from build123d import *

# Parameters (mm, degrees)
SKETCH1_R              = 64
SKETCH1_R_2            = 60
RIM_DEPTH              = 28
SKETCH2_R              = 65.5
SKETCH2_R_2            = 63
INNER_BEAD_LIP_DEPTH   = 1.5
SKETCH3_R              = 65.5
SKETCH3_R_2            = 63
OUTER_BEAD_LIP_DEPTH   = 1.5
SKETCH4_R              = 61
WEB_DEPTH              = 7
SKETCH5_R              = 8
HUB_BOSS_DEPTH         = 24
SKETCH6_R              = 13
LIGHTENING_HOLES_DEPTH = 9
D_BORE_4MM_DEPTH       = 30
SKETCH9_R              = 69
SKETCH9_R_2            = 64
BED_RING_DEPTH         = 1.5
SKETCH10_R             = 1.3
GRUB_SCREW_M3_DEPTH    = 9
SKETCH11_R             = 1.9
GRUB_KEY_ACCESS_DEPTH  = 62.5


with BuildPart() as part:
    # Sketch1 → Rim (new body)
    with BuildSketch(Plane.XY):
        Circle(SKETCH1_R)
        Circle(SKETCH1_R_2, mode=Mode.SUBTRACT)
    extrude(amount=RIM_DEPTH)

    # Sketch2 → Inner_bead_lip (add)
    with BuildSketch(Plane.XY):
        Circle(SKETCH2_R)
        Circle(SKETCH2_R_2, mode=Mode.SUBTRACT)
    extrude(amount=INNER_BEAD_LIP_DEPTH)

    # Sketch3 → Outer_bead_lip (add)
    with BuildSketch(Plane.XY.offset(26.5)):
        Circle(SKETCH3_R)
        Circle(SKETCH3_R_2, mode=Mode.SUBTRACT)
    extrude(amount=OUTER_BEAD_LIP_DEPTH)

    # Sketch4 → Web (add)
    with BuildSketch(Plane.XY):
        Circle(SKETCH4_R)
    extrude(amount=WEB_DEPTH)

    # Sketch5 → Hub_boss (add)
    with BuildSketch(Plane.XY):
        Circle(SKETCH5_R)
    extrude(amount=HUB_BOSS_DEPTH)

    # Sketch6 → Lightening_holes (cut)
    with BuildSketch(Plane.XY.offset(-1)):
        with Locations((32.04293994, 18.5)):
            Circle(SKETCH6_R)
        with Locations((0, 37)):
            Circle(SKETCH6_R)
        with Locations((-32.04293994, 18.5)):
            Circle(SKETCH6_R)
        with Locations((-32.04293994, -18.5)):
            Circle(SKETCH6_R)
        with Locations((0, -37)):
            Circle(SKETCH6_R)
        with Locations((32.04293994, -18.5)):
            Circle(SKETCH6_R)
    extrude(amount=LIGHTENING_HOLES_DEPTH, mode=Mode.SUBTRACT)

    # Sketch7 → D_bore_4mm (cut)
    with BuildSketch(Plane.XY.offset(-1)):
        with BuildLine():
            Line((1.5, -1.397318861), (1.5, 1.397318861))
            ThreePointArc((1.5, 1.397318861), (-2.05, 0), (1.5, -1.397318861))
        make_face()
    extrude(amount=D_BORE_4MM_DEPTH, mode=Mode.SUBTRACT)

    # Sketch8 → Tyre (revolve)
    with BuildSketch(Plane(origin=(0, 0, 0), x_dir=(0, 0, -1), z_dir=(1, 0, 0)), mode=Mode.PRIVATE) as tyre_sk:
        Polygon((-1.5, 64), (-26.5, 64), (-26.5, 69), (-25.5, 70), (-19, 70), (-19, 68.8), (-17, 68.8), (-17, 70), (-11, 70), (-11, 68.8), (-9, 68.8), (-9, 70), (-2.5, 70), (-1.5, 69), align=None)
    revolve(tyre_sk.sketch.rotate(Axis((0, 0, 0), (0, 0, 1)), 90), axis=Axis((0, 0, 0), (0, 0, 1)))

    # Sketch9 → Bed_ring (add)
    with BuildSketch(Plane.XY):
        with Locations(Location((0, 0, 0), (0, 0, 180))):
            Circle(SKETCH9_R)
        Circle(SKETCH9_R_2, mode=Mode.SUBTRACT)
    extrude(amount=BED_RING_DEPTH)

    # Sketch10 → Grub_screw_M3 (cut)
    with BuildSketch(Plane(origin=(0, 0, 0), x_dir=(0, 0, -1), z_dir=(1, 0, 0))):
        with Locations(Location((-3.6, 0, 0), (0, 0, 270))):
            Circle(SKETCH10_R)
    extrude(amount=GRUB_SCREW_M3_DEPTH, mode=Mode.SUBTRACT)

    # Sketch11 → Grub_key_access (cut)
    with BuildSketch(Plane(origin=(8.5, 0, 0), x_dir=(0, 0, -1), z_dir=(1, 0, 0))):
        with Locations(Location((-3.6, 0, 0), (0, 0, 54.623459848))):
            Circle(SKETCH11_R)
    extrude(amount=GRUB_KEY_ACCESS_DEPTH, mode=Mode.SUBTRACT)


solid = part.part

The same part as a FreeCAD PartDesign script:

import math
import FreeCAD as App
import Part
import Sketcher
from FreeCAD import Vector

doc = App.newDocument("Part")
body = doc.addObject("PartDesign::Body", "Body")

# Sketch on XY plane
sketch1 = body.newObject("Sketcher::SketchObject", "Sketch")
sketch1.AttachmentSupport = (doc.getObject("XY_Plane"), [""])
sketch1.MapMode = "FlatFace"
sketch1.addGeometry([
    Part.Circle(Vector(0, 0, 0), Vector(0, 0, 1), 64),
    Part.Circle(Vector(0, 0, 0), Vector(0, 0, 1), 60),
], False)
sketch1.addConstraint([
    Sketcher.Constraint("Coincident", 0, 3, -1, 1),
    Sketcher.Constraint("Coincident", 1, 3, -1, 1),
    Sketcher.Constraint("Diameter", 0, 128.0),
    Sketcher.Constraint("Diameter", 1, 120.0),
])
pad1 = body.newObject("PartDesign::Pad", "Pad")
pad1.Profile = sketch1
pad1.Length = 28

# Sketch on XY plane
sketch2 = body.newObject("Sketcher::SketchObject", "Sketch001")
sketch2.AttachmentSupport = (doc.getObject("XY_Plane"), [""])
sketch2.MapMode = "FlatFace"
sketch2.addGeometry([
    Part.Circle(Vector(0, 0, 0), Vector(0, 0, 1), 66),
    Part.Circle(Vector(0, 0, 0), Vector(0, 0, 1), 63),
], False)
sketch2.addConstraint([
    Sketcher.Constraint("Coincident", 0, 3, -1, 1),
    Sketcher.Constraint("Coincident", 1, 3, -1, 1),
    Sketcher.Constraint("Diameter", 0, 131.0),
    Sketcher.Constraint("Diameter", 1, 126.0),
])
pad2 = body.newObject("PartDesign::Pad", "Pad001")
pad2.Profile = sketch2
pad2.Length = 1.5

# Sketch on XY plane
sketch3 = body.newObject("Sketcher::SketchObject", "Sketch002")
sketch3.AttachmentSupport = (doc.getObject("XY_Plane"), [""])
sketch3.MapMode = "FlatFace"
sketch3.AttachmentOffset = App.Placement(Vector(0, 0, 26.5), App.Rotation())
sketch3.addGeometry([
    Part.Circle(Vector(0, 0, 0), Vector(0, 0, 1), 66),
    Part.Circle(Vector(0, 0, 0), Vector(0, 0, 1), 63),
], False)
sketch3.addConstraint([
    Sketcher.Constraint("Coincident", 0, 3, -1, 1),
    Sketcher.Constraint("Coincident", 1, 3, -1, 1),
    Sketcher.Constraint("Diameter", 0, 131.0),
    Sketcher.Constraint("Diameter", 1, 126.0),
])
pad3 = body.newObject("PartDesign::Pad", "Pad002")
pad3.Profile = sketch3
pad3.Length = 1.5

# Sketch on XY plane
sketch4 = body.newObject("Sketcher::SketchObject", "Sketch003")
sketch4.AttachmentSupport = (doc.getObject("XY_Plane"), [""])
sketch4.MapMode = "FlatFace"
sketch4.addGeometry(Part.Circle(Vector(0, 0, 0), Vector(0, 0, 1), 61), False)
sketch4.addConstraint([
    Sketcher.Constraint("Coincident", 0, 3, -1, 1),
    Sketcher.Constraint("Diameter", 0, 122.0),
])
pad4 = body.newObject("PartDesign::Pad", "Pad003")
pad4.Profile = sketch4
pad4.Length = 7

# Sketch on XY plane
sketch5 = body.newObject("Sketcher::SketchObject", "Sketch004")
sketch5.AttachmentSupport = (doc.getObject("XY_Plane"), [""])
sketch5.MapMode = "FlatFace"
sketch5.addGeometry(Part.Circle(Vector(0, 0, 0), Vector(0, 0, 1), 8), False)
sketch5.addConstraint([
    Sketcher.Constraint("Coincident", 0, 3, -1, 1),
    Sketcher.Constraint("Diameter", 0, 16.0),
])
pad5 = body.newObject("PartDesign::Pad", "Pad004")
pad5.Profile = sketch5
pad5.Length = 24

# Sketch on XY plane
sketch6 = body.newObject("Sketcher::SketchObject", "Sketch005")
sketch6.AttachmentSupport = (doc.getObject("XY_Plane"), [""])
sketch6.MapMode = "FlatFace"
sketch6.AttachmentOffset = App.Placement(Vector(0, 0, -1), App.Rotation())
sketch6.addGeometry([
    Part.Circle(Vector(32, 18, 0), Vector(0, 0, 1), 13),  # 0
    Part.Circle(Vector(0, 37, 0), Vector(0, 0, 1), 13),  # 1
    Part.Circle(Vector(-32, 18, 0), Vector(0, 0, 1), 13),  # 2
    Part.Circle(Vector(-32, -18, 0), Vector(0, 0, 1), 13),  # 3
    Part.Circle(Vector(0, -37, 0), Vector(0, 0, 1), 13),  # 4
    Part.Circle(Vector(32, -18, 0), Vector(0, 0, 1), 13),  # 5
], False)
sketch6.addConstraint([
    Sketcher.Constraint("Equal", 0, 1),
    Sketcher.Constraint("Equal", 1, 2),
    Sketcher.Constraint("Equal", 2, 3),
    Sketcher.Constraint("Equal", 3, 4),
    Sketcher.Constraint("Equal", 4, 5),
    Sketcher.Constraint("Symmetric", 0, 3, 3, 3, -1, 1),
    Sketcher.Constraint("Symmetric", 1, 3, 4, 3, -1, 1),
    Sketcher.Constraint("Symmetric", 2, 3, 5, 3, -1, 1),
    Sketcher.Constraint("Symmetric", 0, 3, 2, 3, -2),
    Sketcher.Constraint("PointOnObject", 1, 3, -2),
    Sketcher.Constraint("Diameter", 0, 26.0),
    Sketcher.Constraint("DistanceY", -1, 1, 1, 3, 37.0),
    Sketcher.Constraint("DistanceY", 3, 3, 2, 3, 37.0),
    Sketcher.Constraint("DistanceX", -1, 1, 0, 3, 32.04294),
])
pocket1 = body.newObject("PartDesign::Pocket", "Pocket")
pocket1.Profile = sketch6
pocket1.Length = 9
pocket1.Reversed = True

# Sketch on XY plane
sketch7 = body.newObject("Sketcher::SketchObject", "Sketch006")
sketch7.AttachmentSupport = (doc.getObject("XY_Plane"), [""])
sketch7.MapMode = "FlatFace"
sketch7.AttachmentOffset = App.Placement(Vector(0, 0, -1), App.Rotation())
sketch7.addGeometry([
    Part.LineSegment(Vector(1.5, -1.4, 0), Vector(1.5, 1.4, 0)),
    Part.ArcOfCircle(Part.Circle(Vector(0, 0, 0), Vector(0, 0, 1), 2), math.radians(43), math.radians(317)),
], False)
sketch7.addConstraint([
    Sketcher.Constraint("Coincident", 0, 1, 1, 2),
    Sketcher.Constraint("Coincident", 1, 1, 0, 2),
    Sketcher.Constraint("Vertical", 0),
    Sketcher.Constraint("Coincident", 1, 3, -1, 1),
    Sketcher.Constraint("Radius", 1, 2.05),
    Sketcher.Constraint("DistanceX", -1, 1, 0, 1, 1.5),
])
pocket2 = body.newObject("PartDesign::Pocket", "Pocket001")
pocket2.Profile = sketch7
pocket2.Length = 30
pocket2.Reversed = True

# Sketch on YZ plane
sketch8 = body.newObject("Sketcher::SketchObject", "Sketch007")
sketch8.AttachmentSupport = (doc.getObject("YZ_Plane"), [""])
sketch8.MapMode = "FlatFace"
sketch8.addGeometry([
    Part.LineSegment(Vector(64, 26.5, 0), Vector(64, 1.5, 0)),  # 0
    Part.LineSegment(Vector(64, 1.5, 0), Vector(69, 1.5, 0)),  # 1
    Part.LineSegment(Vector(69, 1.5, 0), Vector(70, 2.5, 0)),  # 2
    Part.LineSegment(Vector(70, 2.5, 0), Vector(70, 9, 0)),  # 3
    Part.LineSegment(Vector(70, 9, 0), Vector(68.8, 9, 0)),  # 4
    Part.LineSegment(Vector(68.8, 9, 0), Vector(68.8, 11, 0)),  # 5
    Part.LineSegment(Vector(68.8, 11, 0), Vector(70, 11, 0)),  # 6
    Part.LineSegment(Vector(70, 11, 0), Vector(70, 17, 0)),  # 7
    Part.LineSegment(Vector(70, 17, 0), Vector(68.8, 17, 0)),  # 8
    Part.LineSegment(Vector(68.8, 17, 0), Vector(68.8, 19, 0)),  # 9
    Part.LineSegment(Vector(68.8, 19, 0), Vector(70, 19, 0)),  # 10
    Part.LineSegment(Vector(70, 19, 0), Vector(70, 25.5, 0)),  # 11
    Part.LineSegment(Vector(70, 25.5, 0), Vector(69, 26.5, 0)),  # 12
    Part.LineSegment(Vector(69, 26.5, 0), Vector(64, 26.5, 0)),  # 13
], False)
sketch8.addConstraint([
    Sketcher.Constraint("Coincident", 0, 2, 1, 1),
    Sketcher.Constraint("Coincident", 1, 2, 2, 1),
    Sketcher.Constraint("Coincident", 2, 2, 3, 1),
    Sketcher.Constraint("Coincident", 3, 2, 4, 1),
    Sketcher.Constraint("Coincident", 4, 2, 5, 1),
    Sketcher.Constraint("Coincident", 5, 2, 6, 1),
    Sketcher.Constraint("Coincident", 6, 2, 7, 1),
    Sketcher.Constraint("Coincident", 7, 2, 8, 1),
    Sketcher.Constraint("Coincident", 8, 2, 9, 1),
    Sketcher.Constraint("Coincident", 9, 2, 10, 1),
    Sketcher.Constraint("Coincident", 10, 2, 11, 1),
    Sketcher.Constraint("Coincident", 11, 2, 12, 1),
    Sketcher.Constraint("Coincident", 12, 2, 13, 1),
    Sketcher.Constraint("Coincident", 13, 2, 0, 1),
    Sketcher.Constraint("Vertical", 0),
    Sketcher.Constraint("Horizontal", 1),
    Sketcher.Constraint("Vertical", 3),
    Sketcher.Constraint("Horizontal", 4),
    Sketcher.Constraint("Vertical", 5),
    Sketcher.Constraint("Horizontal", 6),
    Sketcher.Constraint("Vertical", 7),
    Sketcher.Constraint("Horizontal", 8),
    Sketcher.Constraint("Vertical", 9),
    Sketcher.Constraint("Horizontal", 10),
    Sketcher.Constraint("Vertical", 11),
    Sketcher.Constraint("Horizontal", 13),
    Sketcher.Constraint("Perpendicular", 2, 12),
    Sketcher.Constraint("Vertical", 3, 2, 6, 2),
    Sketcher.Constraint("Vertical", 5, 2, 8, 2),
    Sketcher.Constraint("Vertical", 7, 2, 10, 2),
    Sketcher.Constraint("Vertical", 1, 2, 12, 2),
    Sketcher.Constraint("Equal", 5, 9),
    Sketcher.Constraint("Equal", 3, 11),
    Sketcher.Constraint("Equal", 2, 12),
    Sketcher.Constraint("DistanceX", 1, 1, 1, 2, 5.0),
    Sketcher.Constraint("DistanceY", 0, 2, 0, 1, 25.0),
    Sketcher.Constraint("DistanceY", 5, 1, 5, 2, 2.0),
    Sketcher.Constraint("DistanceY", 7, 1, 7, 2, 6.0),
    Sketcher.Constraint("DistanceX", 4, 2, 4, 1, 1.2),
    Sketcher.Constraint("DistanceY", 3, 1, 3, 2, 6.5),
    Sketcher.Constraint("DistanceX", -1, 1, 0, 2, 64.0),
    Sketcher.Constraint("DistanceY", -1, 1, 3, 2, 9.0),
])
revolution = body.newObject("PartDesign::Revolution", "Revolution")
revolution.Profile = sketch8
revolution.ReferenceAxis = (sketch8, ["V_Axis"])
revolution.Angle = 360

# Sketch on XY plane
sketch9 = body.newObject("Sketcher::SketchObject", "Sketch008")
sketch9.AttachmentSupport = (doc.getObject("XY_Plane"), [""])
sketch9.MapMode = "FlatFace"
sketch9.addGeometry([
    Part.Circle(Vector(0, 0, 0), Vector(0, 0, 1), 69),
    Part.Circle(Vector(0, 0, 0), Vector(0, 0, 1), 64),
], False)
sketch9.addConstraint([
    Sketcher.Constraint("Coincident", 0, 3, -1, 1),
    Sketcher.Constraint("Coincident", 1, 3, -1, 1),
    Sketcher.Constraint("Diameter", 0, 138.0),
    Sketcher.Constraint("Diameter", 1, 128.0),
])
pad6 = body.newObject("PartDesign::Pad", "Pad005")
pad6.Profile = sketch9
pad6.Length = 1.5

# Sketch on YZ plane
sketch10 = body.newObject("Sketcher::SketchObject", "Sketch009")
sketch10.AttachmentSupport = (doc.getObject("YZ_Plane"), [""])
sketch10.MapMode = "FlatFace"
sketch10.addGeometry(Part.Circle(Vector(0, 3.6, 0), Vector(0, 0, 1), 1.3), False)
sketch10.addConstraint([
    Sketcher.Constraint("PointOnObject", 0, 3, -2),
    Sketcher.Constraint("Diameter", 0, 2.6),
    Sketcher.Constraint("DistanceY", -1, 1, 0, 3, 3.6),
])
pocket3 = body.newObject("PartDesign::Pocket", "Pocket002")
pocket3.Profile = sketch10
pocket3.Length = 9
pocket3.Reversed = True

# Sketch on YZ plane
sketch11 = body.newObject("Sketcher::SketchObject", "Sketch010")
sketch11.AttachmentSupport = (doc.getObject("YZ_Plane"), [""])
sketch11.MapMode = "FlatFace"
sketch11.AttachmentOffset = App.Placement(Vector(0, 0, 8.5), App.Rotation())
sketch11.addGeometry(Part.Circle(Vector(0, 3.6, 0), Vector(0, 0, 1), 1.9), False)
sketch11.addConstraint([
    Sketcher.Constraint("PointOnObject", 0, 3, -2),
    Sketcher.Constraint("Diameter", 0, 3.8),
    Sketcher.Constraint("DistanceY", -1, 1, 0, 3, 3.6),
])
pocket4 = body.newObject("PartDesign::Pocket", "Pocket003")
pocket4.Profile = sketch11
pocket4.Length = 62.5
pocket4.Reversed = True

doc.recompute()
